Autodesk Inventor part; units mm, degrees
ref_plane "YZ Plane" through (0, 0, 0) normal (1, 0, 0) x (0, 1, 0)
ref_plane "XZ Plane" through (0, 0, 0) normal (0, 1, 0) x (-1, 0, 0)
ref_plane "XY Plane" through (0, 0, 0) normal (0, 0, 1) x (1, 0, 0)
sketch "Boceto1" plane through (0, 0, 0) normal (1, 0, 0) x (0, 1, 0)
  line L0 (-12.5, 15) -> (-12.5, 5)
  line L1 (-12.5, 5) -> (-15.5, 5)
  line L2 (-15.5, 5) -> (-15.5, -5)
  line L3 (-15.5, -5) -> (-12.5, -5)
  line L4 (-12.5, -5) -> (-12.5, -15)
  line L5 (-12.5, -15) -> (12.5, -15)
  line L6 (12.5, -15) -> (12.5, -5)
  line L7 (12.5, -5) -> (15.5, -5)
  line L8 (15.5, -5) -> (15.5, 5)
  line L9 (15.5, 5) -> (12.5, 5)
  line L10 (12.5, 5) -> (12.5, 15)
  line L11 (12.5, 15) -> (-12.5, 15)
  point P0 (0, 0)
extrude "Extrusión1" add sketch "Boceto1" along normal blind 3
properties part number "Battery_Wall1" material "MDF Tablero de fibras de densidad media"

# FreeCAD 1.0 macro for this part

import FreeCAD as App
import Part
import Sketcher


def add_polygon(sketch, points):
    """Adds a closed chain of lines whose ends are joined by coincident constraints."""
    first, n = sketch.GeometryCount, len(points)
    for a, b in zip(points, points[1:] + points[:1]):
        sketch.addGeometry(Part.LineSegment(App.Vector(*a, 0), App.Vector(*b, 0)), False)
    for i in range(n):
        sketch.addConstraint(Sketcher.Constraint("Coincident", first + i, 2, first + (i + 1) % n, 1))

doc = App.newDocument("Part")
body = doc.addObject("PartDesign::Body", "Body")

# Sketch on YZ plane
sketch1 = doc.addObject("Sketcher::SketchObject", "Sketch")
body.addObject(sketch1)
sketch1.AttachmentSupport = (doc.YZ_Plane, [""])
sketch1.MapMode = "FlatFace"
add_polygon(sketch1, [(12.5, 15), (-12.5, 15), (-12.5, 5), (-15.5, 5), (-15.5, -5), (-12.5, -5), (-12.5, -15), (12.5, -15), (12.5, -5), (15.5, -5), (15.5, 5), (12.5, 5)])  # lines 0-11
sketch1.addConstraint([
    Sketcher.Constraint("Horizontal", 0),
    Sketcher.Constraint("Vertical", 1),
    Sketcher.Constraint("Horizontal", 2),
    Sketcher.Constraint("Vertical", 3),
    Sketcher.Constraint("Horizontal", 4),
    Sketcher.Constraint("Vertical", 5),
    Sketcher.Constraint("Horizontal", 6),
    Sketcher.Constraint("Vertical", 7),
    Sketcher.Constraint("Horizontal", 8),
    Sketcher.Constraint("Vertical", 9),
    Sketcher.Constraint("Horizontal", 10),
    Sketcher.Constraint("Vertical", 11),
    Sketcher.Constraint("Symmetric", 0, 2, 6, 2, -1, 1),
    Sketcher.Constraint("Symmetric", 2, 2, 8, 2, -1, 1),
    Sketcher.Constraint("Symmetric", 4, 2, 10, 2, -1, 1),
    Sketcher.Constraint("Symmetric", 4, 2, 7, 2, -2),
    Sketcher.Constraint("Equal", 1, 3),
    Sketcher.Constraint("DistanceX", 0, 2, 0, 1, 25.0),
    Sketcher.Constraint("DistanceX", 2, 2, 2, 1, 3.0),
    Sketcher.Constraint("DistanceY", 1, 2, 1, 1, 10.0),
])
pad1 = doc.addObject("PartDesign::Pad", "Pad")
body.addObject(pad1)
pad1.Profile = sketch1
pad1.Length = 3

doc.recompute()
